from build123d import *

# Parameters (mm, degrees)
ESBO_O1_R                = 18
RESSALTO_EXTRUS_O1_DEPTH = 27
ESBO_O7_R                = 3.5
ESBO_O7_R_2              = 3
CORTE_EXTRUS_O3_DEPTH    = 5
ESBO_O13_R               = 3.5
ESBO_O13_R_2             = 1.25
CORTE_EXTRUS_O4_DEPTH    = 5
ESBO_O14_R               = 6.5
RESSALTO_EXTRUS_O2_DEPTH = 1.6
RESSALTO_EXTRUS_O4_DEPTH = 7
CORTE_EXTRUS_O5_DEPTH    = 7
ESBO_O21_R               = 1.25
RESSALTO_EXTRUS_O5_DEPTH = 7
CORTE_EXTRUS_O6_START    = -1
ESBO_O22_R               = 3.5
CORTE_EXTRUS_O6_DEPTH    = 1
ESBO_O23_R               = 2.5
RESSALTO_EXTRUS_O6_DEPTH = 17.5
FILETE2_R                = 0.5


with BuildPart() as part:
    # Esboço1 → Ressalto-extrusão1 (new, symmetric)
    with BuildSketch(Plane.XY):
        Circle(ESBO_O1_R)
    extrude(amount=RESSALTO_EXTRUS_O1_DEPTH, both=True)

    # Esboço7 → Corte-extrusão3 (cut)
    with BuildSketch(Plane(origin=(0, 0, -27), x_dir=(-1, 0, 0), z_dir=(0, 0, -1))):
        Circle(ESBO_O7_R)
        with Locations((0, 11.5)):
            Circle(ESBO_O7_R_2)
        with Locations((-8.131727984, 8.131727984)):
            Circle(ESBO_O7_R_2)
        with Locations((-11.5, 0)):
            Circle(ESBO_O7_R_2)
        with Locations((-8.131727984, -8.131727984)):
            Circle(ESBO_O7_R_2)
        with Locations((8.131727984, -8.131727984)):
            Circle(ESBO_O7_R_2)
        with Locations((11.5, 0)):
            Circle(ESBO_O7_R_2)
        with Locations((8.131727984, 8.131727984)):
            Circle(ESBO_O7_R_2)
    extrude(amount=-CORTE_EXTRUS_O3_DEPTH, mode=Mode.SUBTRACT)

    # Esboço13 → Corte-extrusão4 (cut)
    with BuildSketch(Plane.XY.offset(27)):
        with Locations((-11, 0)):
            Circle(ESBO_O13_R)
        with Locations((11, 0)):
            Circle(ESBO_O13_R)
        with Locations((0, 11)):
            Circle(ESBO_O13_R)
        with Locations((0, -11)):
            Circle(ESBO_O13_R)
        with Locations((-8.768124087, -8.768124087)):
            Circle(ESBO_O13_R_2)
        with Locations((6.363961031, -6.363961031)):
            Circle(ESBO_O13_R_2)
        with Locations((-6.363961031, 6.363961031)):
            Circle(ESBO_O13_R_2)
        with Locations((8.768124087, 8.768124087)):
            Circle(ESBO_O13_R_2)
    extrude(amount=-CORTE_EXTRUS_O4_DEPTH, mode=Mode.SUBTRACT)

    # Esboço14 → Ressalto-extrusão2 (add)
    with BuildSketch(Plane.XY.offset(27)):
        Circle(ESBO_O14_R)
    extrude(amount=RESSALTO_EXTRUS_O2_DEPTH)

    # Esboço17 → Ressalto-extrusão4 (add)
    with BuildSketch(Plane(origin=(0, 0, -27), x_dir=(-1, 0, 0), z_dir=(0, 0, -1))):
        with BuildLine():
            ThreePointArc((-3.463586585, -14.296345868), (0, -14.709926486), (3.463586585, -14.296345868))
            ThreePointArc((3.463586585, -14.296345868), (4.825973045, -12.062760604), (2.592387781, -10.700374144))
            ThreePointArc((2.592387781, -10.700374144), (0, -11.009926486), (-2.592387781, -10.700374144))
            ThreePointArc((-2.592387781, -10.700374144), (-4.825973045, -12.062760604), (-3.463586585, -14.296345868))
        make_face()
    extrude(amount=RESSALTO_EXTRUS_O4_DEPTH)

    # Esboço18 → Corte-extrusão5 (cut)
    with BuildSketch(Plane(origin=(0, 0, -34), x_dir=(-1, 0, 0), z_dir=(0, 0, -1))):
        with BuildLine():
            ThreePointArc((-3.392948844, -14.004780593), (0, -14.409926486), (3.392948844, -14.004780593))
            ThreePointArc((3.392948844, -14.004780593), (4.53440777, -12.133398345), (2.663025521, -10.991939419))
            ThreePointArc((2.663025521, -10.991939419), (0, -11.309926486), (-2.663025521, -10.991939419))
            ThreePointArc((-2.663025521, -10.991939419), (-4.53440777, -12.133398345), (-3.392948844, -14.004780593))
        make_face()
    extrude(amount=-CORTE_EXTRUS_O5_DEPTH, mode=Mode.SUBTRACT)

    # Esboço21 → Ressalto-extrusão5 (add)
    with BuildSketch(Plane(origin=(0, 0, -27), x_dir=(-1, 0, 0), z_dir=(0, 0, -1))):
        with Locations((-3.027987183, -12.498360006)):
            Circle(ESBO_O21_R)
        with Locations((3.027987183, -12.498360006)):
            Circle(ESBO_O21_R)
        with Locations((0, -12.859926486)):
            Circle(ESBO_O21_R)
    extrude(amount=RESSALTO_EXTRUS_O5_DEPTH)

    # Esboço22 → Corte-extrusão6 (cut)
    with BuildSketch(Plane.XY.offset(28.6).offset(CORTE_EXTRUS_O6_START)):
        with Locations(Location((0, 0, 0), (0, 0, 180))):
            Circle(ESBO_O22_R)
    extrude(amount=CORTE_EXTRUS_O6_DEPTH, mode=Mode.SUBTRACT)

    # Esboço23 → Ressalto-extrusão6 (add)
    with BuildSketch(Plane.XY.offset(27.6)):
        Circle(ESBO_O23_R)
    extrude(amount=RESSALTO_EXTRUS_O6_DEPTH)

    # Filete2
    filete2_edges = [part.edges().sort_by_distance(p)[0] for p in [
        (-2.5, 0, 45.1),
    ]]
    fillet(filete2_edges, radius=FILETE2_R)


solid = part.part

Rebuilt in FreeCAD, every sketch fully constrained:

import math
import FreeCAD as App
import Part
import Sketcher
Q = App.Units.Quantity


def edges_at(feature, points):
    """Names of the edges that pass closest to the given points."""
    edges = feature.Shape.Edges
    near = lambda p: min(range(len(edges)), key=lambda i: edges[i].distToShape(Part.Vertex(*p))[0])
    return sorted({f"Edge{near(p) + 1}" for p in points})

doc = App.newDocument("Part")
body = doc.addObject("PartDesign::Body", "Body")

# Sketch on XY plane
sketch1 = body.newObject("Sketcher::SketchObject", "Sketch")
sketch1.AttachmentSupport = (doc.getObject("XY_Plane"), [""])
sketch1.MapMode = "FlatFace"
sketch1.addGeometry(Part.Circle(App.Vector(0, 0, 0), App.Vector(0, 0, 1), 18), False)
sketch1.addConstraint(Sketcher.Constraint("Coincident", 0, 3, -1, 1))
sketch1.addConstraint(Sketcher.Constraint("Diameter", 0, Q("36 mm")))
pad1 = body.newObject("PartDesign::Pad", "Pad")
pad1.Profile = sketch1
pad1.Length = 54
pad1.Midplane = True

# Sketch on XY plane
sketch2 = body.newObject("Sketcher::SketchObject", "Sketch001")
sketch2.AttachmentSupport = (doc.getObject("XY_Plane"), [""])
sketch2.MapMode = "FlatFace"
sketch2.AttachmentOffset = App.Placement(App.Vector(0, 0, -27), App.Rotation())
sketch2.addGeometry(Part.Circle(App.Vector(0, 0, 0), App.Vector(0, 0, 1), 3.5), False)
sketch2.addGeometry(Part.Circle(App.Vector(0, 11.5, 0), App.Vector(0, 0, 1), 3), False)
sketch2.addGeometry(Part.Circle(App.Vector(8.131728, 8.131728, 0), App.Vector(0, 0, 1), 3), False)
sketch2.addGeometry(Part.Circle(App.Vector(11.5, 0, 0), App.Vector(0, 0, 1), 3), False)
sketch2.addGeometry(Part.Circle(App.Vector(8.131728, -8.131728, 0), App.Vector(0, 0, 1), 3), False)
sketch2.addGeometry(Part.Circle(App.Vector(-8.131728, -8.131728, 0), App.Vector(0, 0, 1), 3), False)
sketch2.addGeometry(Part.Circle(App.Vector(-11.5, 0, 0), App.Vector(0, 0, 1), 3), False)
sketch2.addGeometry(Part.Circle(App.Vector(-8.131728, 8.131728, 0), App.Vector(0, 0, 1), 3), False)
sketch2.addConstraint(Sketcher.Constraint("Coincident", 0, 3, -1, 1))
sketch2.addConstraint(Sketcher.Constraint("Equal", 1, 2))
sketch2.addConstraint(Sketcher.Constraint("Equal", 2, 3))
sketch2.addConstraint(Sketcher.Constraint("Equal", 3, 4))
sketch2.addConstraint(Sketcher.Constraint("Equal", 4, 5))
sketch2.addConstraint(Sketcher.Constraint("Equal", 5, 6))
sketch2.addConstraint(Sketcher.Constraint("Equal", 6, 7))
sketch2.addConstraint(Sketcher.Constraint("Symmetric", 2, 3, 5, 3, -1, 1))
sketch2.addConstraint(Sketcher.Constraint("Symmetric", 3, 3, 6, 3, -1, 1))
sketch2.addConstraint(Sketcher.Constraint("Symmetric", 4, 3, 7, 3, -1, 1))
sketch2.addConstraint(Sketcher.Constraint("Symmetric", 4, 3, 5, 3, -2))
sketch2.addConstraint(Sketcher.Constraint("PointOnObject", 1, 3, -2))
sketch2.addConstraint(Sketcher.Constraint("PointOnObject", 3, 3, -1))
sketch2.addConstraint(Sketcher.Constraint("Diameter", 0, Q("7 mm")))
sketch2.addConstraint(Sketcher.Constraint("Diameter", 1, Q("6 mm")))
sketch2.addConstraint(Sketcher.Constraint("DistanceY", -1, 1, 1, 3, Q("11.5 mm")))
sketch2.addConstraint(Sketcher.Constraint("DistanceX", -1, 1, 3, 3, Q("11.5 mm")))
sketch2.addConstraint(Sketcher.Constraint("DistanceX", -1, 1, 2, 3, Q("8.131728 mm")))
sketch2.addConstraint(Sketcher.Constraint("DistanceY", -1, 1, 2, 3, Q("8.131728 mm")))
pocket1 = body.newObject("PartDesign::Pocket", "Pocket")
pocket1.Profile = sketch2
pocket1.Length = 5
pocket1.Reversed = True

# Sketch on XY plane
sketch3 = body.newObject("Sketcher::SketchObject", "Sketch002")
sketch3.AttachmentSupport = (doc.getObject("XY_Plane"), [""])
sketch3.MapMode = "FlatFace"
sketch3.AttachmentOffset = App.Placement(App.Vector(0, 0, 27), App.Rotation())
sketch3.addGeometry(Part.Circle(App.Vector(-11, 0, 0), App.Vector(0, 0, 1), 3.5), False)
sketch3.addGeometry(Part.Circle(App.Vector(11, 0, 0), App.Vector(0, 0, 1), 3.5), False)
sketch3.addGeometry(Part.Circle(App.Vector(0, 11, 0), App.Vector(0, 0, 1), 3.5), False)
sketch3.addGeometry(Part.Circle(App.Vector(0, -11, 0), App.Vector(0, 0, 1), 3.5), False)
sketch3.addGeometry(Part.Circle(App.Vector(-8.768124, -8.768124, 0), App.Vector(0, 0, 1), 1.25), False)
sketch3.addGeometry(Part.Circle(App.Vector(6.363961, -6.363961, 0), App.Vector(0, 0, 1), 1.25), False)
sketch3.addGeometry(Part.Circle(App.Vector(-6.363961, 6.363961, 0), App.Vector(0, 0, 1), 1.25), False)
sketch3.addGeometry(Part.Circle(App.Vector(8.768124, 8.768124, 0), App.Vector(0, 0, 1), 1.25), False)
sketch3.addConstraint(Sketcher.Constraint("Equal", 0, 1))
sketch3.addConstraint(Sketcher.Constraint("Equal", 1, 2))
sketch3.addConstraint(Sketcher.Constraint("Equal", 2, 3))
sketch3.addConstraint(Sketcher.Constraint("Equal", 4, 5))
sketch3.addConstraint(Sketcher.Constraint("Equal", 5, 6))
sketch3.addConstraint(Sketcher.Constraint("Equal", 6, 7))
sketch3.addConstraint(Sketcher.Constraint("Symmetric", 0, 3, 1, 3, -1, 1))
sketch3.addConstraint(Sketcher.Constraint("Symmetric", 2, 3, 3, 3, -1, 1))
sketch3.addConstraint(Sketcher.Constraint("Symmetric", 5, 3, 6, 3, -1, 1))
sketch3.addConstraint(Sketcher.Constraint("Symmetric", 4, 3, 7, 3, -1, 1))
sketch3.addConstraint(Sketcher.Constraint("PointOnObject", 0, 3, -1))
sketch3.addConstraint(Sketcher.Constraint("PointOnObject", 2, 3, -2))
sketch3.addConstraint(Sketcher.Constraint("Diameter", 0, Q("7 mm")))
sketch3.addConstraint(Sketcher.Constraint("Diameter", 4, Q("2.5 mm")))
sketch3.addConstraint(Sketcher.Constraint("DistanceX", 0, 3, -1, 1, Q("11 mm")))
sketch3.addConstraint(Sketcher.Constraint("DistanceY", -1, 1, 2, 3, Q("11 mm")))
sketch3.addConstraint(Sketcher.Constraint("DistanceX", -1, 1, 5, 3, Q("6.363961 mm")))
sketch3.addConstraint(Sketcher.Constraint("DistanceY", 5, 3, -1, 1, Q("6.363961 mm")))
sketch3.addConstraint(Sketcher.Constraint("DistanceX", 4, 3, -1, 1, Q("8.768124 mm")))
sketch3.addConstraint(Sketcher.Constraint("DistanceY", 4, 3, -1, 1, Q("8.768124 mm")))
pocket2 = body.newObject("PartDesign::Pocket", "Pocket001")
pocket2.Profile = sketch3
pocket2.Length = 5

# Sketch on XY plane
sketch4 = body.newObject("Sketcher::SketchObject", "Sketch003")
sketch4.AttachmentSupport = (doc.getObject("XY_Plane"), [""])
sketch4.MapMode = "FlatFace"
sketch4.AttachmentOffset = App.Placement(App.Vector(0, 0, 27), App.Rotation())
sketch4.addGeometry(Part.Circle(App.Vector(0, 0, 0), App.Vector(0, 0, 1), 6.5), False)
sketch4.addConstraint(Sketcher.Constraint("Coincident", 0, 3, -1, 1))
sketch4.addConstraint(Sketcher.Constraint("Diameter", 0, Q("13 mm")))
pad2 = body.newObject("PartDesign::Pad", "Pad001")
pad2.Profile = sketch4
pad2.Length = 1.6

# Sketch on XY plane
sketch5 = body.newObject("Sketcher::SketchObject", "Sketch004")
sketch5.AttachmentSupport = (doc.getObject("XY_Plane"), [""])
sketch5.MapMode = "FlatFace"
sketch5.AttachmentOffset = App.Placement(App.Vector(0, 0, -27), App.Rotation())
sketch5.addGeometry(Part.ArcOfCircle(Part.Circle(App.Vector(0, 0, 0), App.Vector(0, 0, 1), 14.709926), math.radians(-103.618689), math.radians(-76.381311)), False)
sketch5.addGeometry(Part.ArcOfCircle(Part.Circle(App.Vector(-3.027987, -12.49836, 0), App.Vector(0, 0, 1), 1.85), math.radians(76.381311), math.radians(256.381311)), False)
sketch5.addGeometry(Part.ArcOfCircle(Part.Circle(App.Vector(0, 0, 0), App.Vector(0, 0, 1), 11.009926), math.radians(-103.618689), math.radians(-76.381311)), False)
sketch5.addGeometry(Part.ArcOfCircle(Part.Circle(App.Vector(3.027987, -12.49836, 0), App.Vector(0, 0, 1), 1.85), math.radians(-76.381311), math.radians(103.618689)), False)
sketch5.addConstraint(Sketcher.Constraint("Tangent", 0, 1, 1, 2))
sketch5.addConstraint(Sketcher.Constraint("Tangent", 1, 1, 2, 1))
sketch5.addConstraint(Sketcher.Constraint("Tangent", 2, 2, 3, 2))
sketch5.addConstraint(Sketcher.Constraint("Tangent", 3, 1, 0, 2))
sketch5.addConstraint(Sketcher.Constraint("Coincident", 0, 3, -1, 1))
sketch5.addConstraint(Sketcher.Constraint("Coincident", 2, 3, -1, 1))
sketch5.addConstraint(Sketcher.Constraint("Horizontal", 1, 3, 3, 3))
sketch5.addConstraint(Sketcher.Constraint("Radius", 1, Q("1.85 mm")))
sketch5.addConstraint(Sketcher.Constraint("Radius", 0, Q("14.709926 mm")))
sketch5.addConstraint(Sketcher.Constraint("DistanceX", 0, 1, 1, 3, Q("0.435599 mm")))
pad3 = body.newObject("PartDesign::Pad", "Pad002")
pad3.Profile = sketch5
pad3.Length = 7
pad3.Reversed = True

# Sketch on XY plane
sketch6 = body.newObject("Sketcher::SketchObject", "Sketch005")
sketch6.AttachmentSupport = (doc.getObject("XY_Plane"), [""])
sketch6.MapMode = "FlatFace"
sketch6.AttachmentOffset = App.Placement(App.Vector(0, 0, -34), App.Rotation())
sketch6.addGeometry(Part.ArcOfCircle(Part.Circle(App.Vector(0, 0, 0), App.Vector(0, 0, 1), 14.409926), math.radians(-103.618689), math.radians(-76.381311)), False)
sketch6.addGeometry(Part.ArcOfCircle(Part.Circle(App.Vector(-3.027987, -12.49836, 0), App.Vector(0, 0, 1), 1.55), math.radians(76.381311), math.radians(256.381311)), False)
sketch6.addGeometry(Part.ArcOfCircle(Part.Circle(App.Vector(0, 0, 0), App.Vector(0, 0, 1), 11.309926), math.radians(-103.618689), math.radians(-76.381311)), False)
sketch6.addGeometry(Part.ArcOfCircle(Part.Circle(App.Vector(3.027987, -12.49836, 0), App.Vector(0, 0, 1), 1.55), math.radians(-76.381311), math.radians(103.618689)), False)
sketch6.addConstraint(Sketcher.Constraint("Tangent", 0, 1, 1, 2))
sketch6.addConstraint(Sketcher.Constraint("Tangent", 1, 1, 2, 1))
sketch6.addConstraint(Sketcher.Constraint("Tangent", 2, 2, 3, 2))
sketch6.addConstraint(Sketcher.Constraint("Tangent", 3, 1, 0, 2))
sketch6.addConstraint(Sketcher.Constraint("Coincident", 0, 3, -1, 1))
sketch6.addConstraint(Sketcher.Constraint("Coincident", 2, 3, -1, 1))
sketch6.addConstraint(Sketcher.Constraint("Horizontal", 1, 3, 3, 3))
sketch6.addConstraint(Sketcher.Constraint("Radius", 1, Q("1.55 mm")))
sketch6.addConstraint(Sketcher.Constraint("Radius", 0, Q("14.409926 mm")))
sketch6.addConstraint(Sketcher.Constraint("DistanceY", 1, 3, -1, 1, Q("12.49836 mm")))
pocket3 = body.newObject("PartDesign::Pocket", "Pocket002")
pocket3.Profile = sketch6
pocket3.Length = 7
pocket3.Reversed = True

# Sketch on XY plane
sketch7 = body.newObject("Sketcher::SketchObject", "Sketch006")
sketch7.AttachmentSupport = (doc.getObject("XY_Plane"), [""])
sketch7.MapMode = "FlatFace"
sketch7.AttachmentOffset = App.Placement(App.Vector(0, 0, -27), App.Rotation())
sketch7.addGeometry(Part.Circle(App.Vector(3.027987, -12.49836, 0), App.Vector(0, 0, 1), 1.25), False)
sketch7.addGeometry(Part.Circle(App.Vector(-3.027987, -12.49836, 0), App.Vector(0, 0, 1), 1.25), False)
sketch7.addGeometry(Part.Circle(App.Vector(0, -12.859926, 0), App.Vector(0, 0, 1), 1.25), False)
sketch7.addConstraint(Sketcher.Constraint("Equal", 0, 1))
sketch7.addConstraint(Sketcher.Constraint("Equal", 1, 2))
sketch7.addConstraint(Sketcher.Constraint("Symmetric", 0, 3, 1, 3, -2))
sketch7.addConstraint(Sketcher.Constraint("PointOnObject", 2, 3, -2))
sketch7.addConstraint(Sketcher.Constraint("Diameter", 0, Q("2.5 mm")))
sketch7.addConstraint(Sketcher.Constraint("DistanceY", 0, 3, -1, 1, Q("12.49836 mm")))
sketch7.addConstraint(Sketcher.Constraint("DistanceX", -1, 1, 0, 3, Q("3.027987 mm")))
sketch7.addConstraint(Sketcher.Constraint("DistanceY", 2, 3, -1, 1, Q("12.859926 mm")))
pad4 = body.newObject("PartDesign::Pad", "Pad003")
pad4.Profile = sketch7
pad4.Length = 7
pad4.Reversed = True

# Sketch on XY plane
sketch8 = body.newObject("Sketcher::SketchObject", "Sketch007")
sketch8.AttachmentSupport = (doc.getObject("XY_Plane"), [""])
sketch8.MapMode = "FlatFace"
sketch8.AttachmentOffset = App.Placement(App.Vector(0, 0, 27.6), App.Rotation())
sketch8.addGeometry(Part.Circle(App.Vector(0, 0, 0), App.Vector(0, 0, 1), 3.5), False)
sketch8.addConstraint(Sketcher.Constraint("Coincident", 0, 3, -1, 1))
sketch8.addConstraint(Sketcher.Constraint("Diameter", 0, Q("7 mm")))
pocket4 = body.newObject("PartDesign::Pocket", "Pocket003")
pocket4.Profile = sketch8
pocket4.Length = 1
pocket4.Reversed = True

# Sketch on XY plane
sketch9 = body.newObject("Sketcher::SketchObject", "Sketch008")
sketch9.AttachmentSupport = (doc.getObject("XY_Plane"), [""])
sketch9.MapMode = "FlatFace"
sketch9.AttachmentOffset = App.Placement(App.Vector(0, 0, 27.6), App.Rotation())
sketch9.addGeometry(Part.Circle(App.Vector(0, 0, 0), App.Vector(0, 0, 1), 2.5), False)
sketch9.addConstraint(Sketcher.Constraint("Coincident", 0, 3, -1, 1))
sketch9.addConstraint(Sketcher.Constraint("Diameter", 0, Q("5 mm")))
pad5 = body.newObject("PartDesign::Pad", "Pad004")
pad5.Profile = sketch9
pad5.Length = 17.5
doc.recompute()

fillet = body.newObject("PartDesign::Fillet", "Fillet")
fillet.Base = (pad5, edges_at(pad5, [(-2.5, 0, 45.1)]))
fillet.Radius = 0.5

doc.recompute()
